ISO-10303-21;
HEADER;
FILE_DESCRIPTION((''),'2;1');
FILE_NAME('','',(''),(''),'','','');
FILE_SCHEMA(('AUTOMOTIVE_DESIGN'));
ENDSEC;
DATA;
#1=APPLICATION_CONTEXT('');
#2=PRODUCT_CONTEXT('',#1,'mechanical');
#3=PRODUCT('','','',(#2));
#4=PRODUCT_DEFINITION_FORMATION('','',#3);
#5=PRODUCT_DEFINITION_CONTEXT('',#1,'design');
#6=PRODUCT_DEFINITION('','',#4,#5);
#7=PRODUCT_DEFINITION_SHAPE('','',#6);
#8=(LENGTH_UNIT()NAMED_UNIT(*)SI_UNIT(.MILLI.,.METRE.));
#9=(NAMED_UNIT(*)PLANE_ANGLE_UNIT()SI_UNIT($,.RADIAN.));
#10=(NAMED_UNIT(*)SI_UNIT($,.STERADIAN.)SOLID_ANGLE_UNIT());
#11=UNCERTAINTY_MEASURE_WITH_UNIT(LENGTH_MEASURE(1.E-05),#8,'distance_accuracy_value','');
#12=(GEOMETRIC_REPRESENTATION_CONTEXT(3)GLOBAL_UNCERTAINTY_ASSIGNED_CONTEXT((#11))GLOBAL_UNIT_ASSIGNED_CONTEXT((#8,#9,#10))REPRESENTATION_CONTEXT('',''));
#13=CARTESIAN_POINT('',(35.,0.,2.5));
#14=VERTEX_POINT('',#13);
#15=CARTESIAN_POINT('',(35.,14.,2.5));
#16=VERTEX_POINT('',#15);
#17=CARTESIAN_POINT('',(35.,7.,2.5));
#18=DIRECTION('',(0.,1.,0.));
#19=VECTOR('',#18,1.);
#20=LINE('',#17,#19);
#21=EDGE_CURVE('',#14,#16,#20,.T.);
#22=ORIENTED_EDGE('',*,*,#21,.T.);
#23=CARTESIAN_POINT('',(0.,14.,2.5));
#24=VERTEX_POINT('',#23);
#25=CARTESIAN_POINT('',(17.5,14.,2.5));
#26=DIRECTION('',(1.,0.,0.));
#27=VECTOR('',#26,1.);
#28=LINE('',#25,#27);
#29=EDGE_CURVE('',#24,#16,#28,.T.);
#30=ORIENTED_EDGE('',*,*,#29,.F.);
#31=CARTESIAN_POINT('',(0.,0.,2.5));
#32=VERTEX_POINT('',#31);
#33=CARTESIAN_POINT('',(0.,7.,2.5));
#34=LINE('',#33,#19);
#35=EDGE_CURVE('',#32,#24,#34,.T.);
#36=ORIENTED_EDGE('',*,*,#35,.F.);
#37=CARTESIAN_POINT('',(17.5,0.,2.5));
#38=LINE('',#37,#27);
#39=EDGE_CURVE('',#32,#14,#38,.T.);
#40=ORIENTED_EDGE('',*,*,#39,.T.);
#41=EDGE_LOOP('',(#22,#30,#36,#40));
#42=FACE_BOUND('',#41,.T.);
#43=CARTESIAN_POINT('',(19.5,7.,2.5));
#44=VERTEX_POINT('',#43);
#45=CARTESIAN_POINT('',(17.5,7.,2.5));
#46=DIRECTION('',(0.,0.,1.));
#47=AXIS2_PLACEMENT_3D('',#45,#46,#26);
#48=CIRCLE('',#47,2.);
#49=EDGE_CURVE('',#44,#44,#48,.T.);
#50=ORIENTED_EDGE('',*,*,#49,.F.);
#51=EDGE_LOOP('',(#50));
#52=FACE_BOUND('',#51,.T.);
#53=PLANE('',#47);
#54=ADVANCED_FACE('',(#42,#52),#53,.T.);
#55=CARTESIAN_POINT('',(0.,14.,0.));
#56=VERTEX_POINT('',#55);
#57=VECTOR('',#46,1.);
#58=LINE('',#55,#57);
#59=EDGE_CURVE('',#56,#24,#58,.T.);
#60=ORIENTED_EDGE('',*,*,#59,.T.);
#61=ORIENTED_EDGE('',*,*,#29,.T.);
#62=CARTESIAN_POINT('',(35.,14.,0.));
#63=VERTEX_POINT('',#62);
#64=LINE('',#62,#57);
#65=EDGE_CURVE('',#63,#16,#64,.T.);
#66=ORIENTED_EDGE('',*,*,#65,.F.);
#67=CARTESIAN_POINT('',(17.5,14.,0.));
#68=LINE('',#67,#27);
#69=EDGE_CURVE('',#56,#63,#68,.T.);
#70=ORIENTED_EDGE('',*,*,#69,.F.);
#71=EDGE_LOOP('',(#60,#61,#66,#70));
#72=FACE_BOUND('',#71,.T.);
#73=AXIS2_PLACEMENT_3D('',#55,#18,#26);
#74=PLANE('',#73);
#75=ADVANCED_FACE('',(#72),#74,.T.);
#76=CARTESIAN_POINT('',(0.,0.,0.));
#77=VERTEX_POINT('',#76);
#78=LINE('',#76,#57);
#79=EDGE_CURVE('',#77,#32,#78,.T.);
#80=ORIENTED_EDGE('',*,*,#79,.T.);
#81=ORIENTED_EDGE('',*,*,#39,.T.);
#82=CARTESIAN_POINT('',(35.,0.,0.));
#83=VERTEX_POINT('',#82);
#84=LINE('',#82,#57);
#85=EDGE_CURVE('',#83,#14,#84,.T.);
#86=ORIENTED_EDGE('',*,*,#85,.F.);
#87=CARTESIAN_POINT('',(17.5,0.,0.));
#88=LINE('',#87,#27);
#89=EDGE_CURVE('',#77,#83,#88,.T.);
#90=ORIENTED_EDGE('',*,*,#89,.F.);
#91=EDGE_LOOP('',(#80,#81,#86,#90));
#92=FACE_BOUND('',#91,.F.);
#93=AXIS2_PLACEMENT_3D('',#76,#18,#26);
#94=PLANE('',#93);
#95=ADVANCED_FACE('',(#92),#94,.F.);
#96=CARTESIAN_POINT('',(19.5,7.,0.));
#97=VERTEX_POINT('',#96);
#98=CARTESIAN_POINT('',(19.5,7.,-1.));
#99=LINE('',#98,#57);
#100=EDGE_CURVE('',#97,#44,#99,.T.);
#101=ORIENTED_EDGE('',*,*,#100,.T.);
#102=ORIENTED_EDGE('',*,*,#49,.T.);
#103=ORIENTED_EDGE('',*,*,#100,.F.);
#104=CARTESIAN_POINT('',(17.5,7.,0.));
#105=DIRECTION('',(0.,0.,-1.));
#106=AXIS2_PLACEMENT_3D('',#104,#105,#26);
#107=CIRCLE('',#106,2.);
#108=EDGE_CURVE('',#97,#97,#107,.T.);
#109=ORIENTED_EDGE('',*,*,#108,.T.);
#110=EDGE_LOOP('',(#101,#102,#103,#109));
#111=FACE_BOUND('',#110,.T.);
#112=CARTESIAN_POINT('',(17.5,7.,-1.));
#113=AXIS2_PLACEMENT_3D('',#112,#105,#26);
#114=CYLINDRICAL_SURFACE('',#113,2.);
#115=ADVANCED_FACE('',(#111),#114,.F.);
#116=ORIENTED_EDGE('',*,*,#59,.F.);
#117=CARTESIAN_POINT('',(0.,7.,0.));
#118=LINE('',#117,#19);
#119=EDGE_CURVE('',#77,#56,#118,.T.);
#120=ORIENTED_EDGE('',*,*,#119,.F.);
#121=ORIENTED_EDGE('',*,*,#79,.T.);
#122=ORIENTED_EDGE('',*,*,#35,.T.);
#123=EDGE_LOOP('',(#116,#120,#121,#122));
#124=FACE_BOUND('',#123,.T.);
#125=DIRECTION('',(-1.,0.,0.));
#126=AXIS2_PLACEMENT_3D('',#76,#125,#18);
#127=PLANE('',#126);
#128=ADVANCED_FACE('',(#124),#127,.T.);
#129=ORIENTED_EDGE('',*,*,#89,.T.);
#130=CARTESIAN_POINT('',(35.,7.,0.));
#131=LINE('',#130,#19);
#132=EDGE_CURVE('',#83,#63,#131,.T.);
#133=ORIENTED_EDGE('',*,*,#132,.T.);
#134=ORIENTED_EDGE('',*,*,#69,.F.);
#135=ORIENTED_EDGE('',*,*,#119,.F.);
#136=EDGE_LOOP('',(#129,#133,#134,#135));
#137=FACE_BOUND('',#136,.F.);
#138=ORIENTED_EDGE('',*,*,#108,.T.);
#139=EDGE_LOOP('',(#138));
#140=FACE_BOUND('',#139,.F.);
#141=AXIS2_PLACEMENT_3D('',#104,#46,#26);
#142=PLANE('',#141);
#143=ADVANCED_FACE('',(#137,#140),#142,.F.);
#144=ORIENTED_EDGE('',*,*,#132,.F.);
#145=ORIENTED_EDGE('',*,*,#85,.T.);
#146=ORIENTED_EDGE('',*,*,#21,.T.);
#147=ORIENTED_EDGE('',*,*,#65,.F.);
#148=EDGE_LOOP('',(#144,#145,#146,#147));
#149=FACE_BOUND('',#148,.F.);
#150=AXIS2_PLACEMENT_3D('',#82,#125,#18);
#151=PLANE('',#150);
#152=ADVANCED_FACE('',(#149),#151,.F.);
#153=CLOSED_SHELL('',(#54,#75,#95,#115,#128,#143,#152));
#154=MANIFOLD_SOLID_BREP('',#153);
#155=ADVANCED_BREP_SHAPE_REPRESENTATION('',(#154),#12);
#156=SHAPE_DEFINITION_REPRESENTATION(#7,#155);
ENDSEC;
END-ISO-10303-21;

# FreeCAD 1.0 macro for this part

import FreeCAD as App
import Part
import Sketcher

V = App.Vector

doc = App.newDocument("Part")
body = doc.addObject("PartDesign::Body", "Body")

# Sketch on XY plane
sketch1 = body.newObject("Sketcher::SketchObject", "Sketch")
sketch1.AttachmentSupport = (doc.getObject("XY_Plane"), [""])
sketch1.MapMode = "FlatFace"
sketch1.addGeometry([
    Part.LineSegment(V(0, 14, 0), V(0, 0, 0)),
    Part.LineSegment(V(0, 0, 0), V(35, 0, 0)),
    Part.LineSegment(V(35, 0, 0), V(35, 14, 0)),
    Part.LineSegment(V(35, 14, 0), V(0, 14, 0)),
], False)
sketch1.addConstraint([
    Sketcher.Constraint("Coincident", 0, 2, 1, 1),
    Sketcher.Constraint("Coincident", 1, 2, 2, 1),
    Sketcher.Constraint("Coincident", 2, 2, 3, 1),
    Sketcher.Constraint("Coincident", 3, 2, 0, 1),
    Sketcher.Constraint("Vertical", 0),
    Sketcher.Constraint("Horizontal", 1),
    Sketcher.Constraint("Vertical", 2),
    Sketcher.Constraint("Horizontal", 3),
    Sketcher.Constraint("Coincident", 0, 2, -1, 1),
    Sketcher.Constraint("DistanceX", 1, 1, 1, 2, 35.0),
    Sketcher.Constraint("DistanceY", 0, 2, 0, 1, 14.0),
])
pad1 = body.newObject("PartDesign::Pad", "Pad")
pad1.Profile = sketch1
pad1.Length = 2.5

# Sketch on XY plane
sketch2 = body.newObject("Sketcher::SketchObject", "Sketch001")
sketch2.AttachmentSupport = (doc.getObject("XY_Plane"), [""])
sketch2.MapMode = "FlatFace"
sketch2.AttachmentOffset = App.Placement(V(0, 0, -1), App.Rotation())
sketch2.addGeometry(Part.Circle(V(17.5, 7, 0), V(0, 0, 1), 2), False)
sketch2.addConstraint([
    Sketcher.Constraint("Diameter", 0, 4.0),
    Sketcher.Constraint("DistanceY", -1, 1, 0, 3, 7.0),
    Sketcher.Constraint("DistanceX", -1, 1, 0, 3, 17.5),
])
pocket1 = body.newObject("PartDesign::Pocket", "Pocket")
pocket1.Profile = sketch2
pocket1.Length = 3.5
pocket1.Reversed = True

doc.recompute()
